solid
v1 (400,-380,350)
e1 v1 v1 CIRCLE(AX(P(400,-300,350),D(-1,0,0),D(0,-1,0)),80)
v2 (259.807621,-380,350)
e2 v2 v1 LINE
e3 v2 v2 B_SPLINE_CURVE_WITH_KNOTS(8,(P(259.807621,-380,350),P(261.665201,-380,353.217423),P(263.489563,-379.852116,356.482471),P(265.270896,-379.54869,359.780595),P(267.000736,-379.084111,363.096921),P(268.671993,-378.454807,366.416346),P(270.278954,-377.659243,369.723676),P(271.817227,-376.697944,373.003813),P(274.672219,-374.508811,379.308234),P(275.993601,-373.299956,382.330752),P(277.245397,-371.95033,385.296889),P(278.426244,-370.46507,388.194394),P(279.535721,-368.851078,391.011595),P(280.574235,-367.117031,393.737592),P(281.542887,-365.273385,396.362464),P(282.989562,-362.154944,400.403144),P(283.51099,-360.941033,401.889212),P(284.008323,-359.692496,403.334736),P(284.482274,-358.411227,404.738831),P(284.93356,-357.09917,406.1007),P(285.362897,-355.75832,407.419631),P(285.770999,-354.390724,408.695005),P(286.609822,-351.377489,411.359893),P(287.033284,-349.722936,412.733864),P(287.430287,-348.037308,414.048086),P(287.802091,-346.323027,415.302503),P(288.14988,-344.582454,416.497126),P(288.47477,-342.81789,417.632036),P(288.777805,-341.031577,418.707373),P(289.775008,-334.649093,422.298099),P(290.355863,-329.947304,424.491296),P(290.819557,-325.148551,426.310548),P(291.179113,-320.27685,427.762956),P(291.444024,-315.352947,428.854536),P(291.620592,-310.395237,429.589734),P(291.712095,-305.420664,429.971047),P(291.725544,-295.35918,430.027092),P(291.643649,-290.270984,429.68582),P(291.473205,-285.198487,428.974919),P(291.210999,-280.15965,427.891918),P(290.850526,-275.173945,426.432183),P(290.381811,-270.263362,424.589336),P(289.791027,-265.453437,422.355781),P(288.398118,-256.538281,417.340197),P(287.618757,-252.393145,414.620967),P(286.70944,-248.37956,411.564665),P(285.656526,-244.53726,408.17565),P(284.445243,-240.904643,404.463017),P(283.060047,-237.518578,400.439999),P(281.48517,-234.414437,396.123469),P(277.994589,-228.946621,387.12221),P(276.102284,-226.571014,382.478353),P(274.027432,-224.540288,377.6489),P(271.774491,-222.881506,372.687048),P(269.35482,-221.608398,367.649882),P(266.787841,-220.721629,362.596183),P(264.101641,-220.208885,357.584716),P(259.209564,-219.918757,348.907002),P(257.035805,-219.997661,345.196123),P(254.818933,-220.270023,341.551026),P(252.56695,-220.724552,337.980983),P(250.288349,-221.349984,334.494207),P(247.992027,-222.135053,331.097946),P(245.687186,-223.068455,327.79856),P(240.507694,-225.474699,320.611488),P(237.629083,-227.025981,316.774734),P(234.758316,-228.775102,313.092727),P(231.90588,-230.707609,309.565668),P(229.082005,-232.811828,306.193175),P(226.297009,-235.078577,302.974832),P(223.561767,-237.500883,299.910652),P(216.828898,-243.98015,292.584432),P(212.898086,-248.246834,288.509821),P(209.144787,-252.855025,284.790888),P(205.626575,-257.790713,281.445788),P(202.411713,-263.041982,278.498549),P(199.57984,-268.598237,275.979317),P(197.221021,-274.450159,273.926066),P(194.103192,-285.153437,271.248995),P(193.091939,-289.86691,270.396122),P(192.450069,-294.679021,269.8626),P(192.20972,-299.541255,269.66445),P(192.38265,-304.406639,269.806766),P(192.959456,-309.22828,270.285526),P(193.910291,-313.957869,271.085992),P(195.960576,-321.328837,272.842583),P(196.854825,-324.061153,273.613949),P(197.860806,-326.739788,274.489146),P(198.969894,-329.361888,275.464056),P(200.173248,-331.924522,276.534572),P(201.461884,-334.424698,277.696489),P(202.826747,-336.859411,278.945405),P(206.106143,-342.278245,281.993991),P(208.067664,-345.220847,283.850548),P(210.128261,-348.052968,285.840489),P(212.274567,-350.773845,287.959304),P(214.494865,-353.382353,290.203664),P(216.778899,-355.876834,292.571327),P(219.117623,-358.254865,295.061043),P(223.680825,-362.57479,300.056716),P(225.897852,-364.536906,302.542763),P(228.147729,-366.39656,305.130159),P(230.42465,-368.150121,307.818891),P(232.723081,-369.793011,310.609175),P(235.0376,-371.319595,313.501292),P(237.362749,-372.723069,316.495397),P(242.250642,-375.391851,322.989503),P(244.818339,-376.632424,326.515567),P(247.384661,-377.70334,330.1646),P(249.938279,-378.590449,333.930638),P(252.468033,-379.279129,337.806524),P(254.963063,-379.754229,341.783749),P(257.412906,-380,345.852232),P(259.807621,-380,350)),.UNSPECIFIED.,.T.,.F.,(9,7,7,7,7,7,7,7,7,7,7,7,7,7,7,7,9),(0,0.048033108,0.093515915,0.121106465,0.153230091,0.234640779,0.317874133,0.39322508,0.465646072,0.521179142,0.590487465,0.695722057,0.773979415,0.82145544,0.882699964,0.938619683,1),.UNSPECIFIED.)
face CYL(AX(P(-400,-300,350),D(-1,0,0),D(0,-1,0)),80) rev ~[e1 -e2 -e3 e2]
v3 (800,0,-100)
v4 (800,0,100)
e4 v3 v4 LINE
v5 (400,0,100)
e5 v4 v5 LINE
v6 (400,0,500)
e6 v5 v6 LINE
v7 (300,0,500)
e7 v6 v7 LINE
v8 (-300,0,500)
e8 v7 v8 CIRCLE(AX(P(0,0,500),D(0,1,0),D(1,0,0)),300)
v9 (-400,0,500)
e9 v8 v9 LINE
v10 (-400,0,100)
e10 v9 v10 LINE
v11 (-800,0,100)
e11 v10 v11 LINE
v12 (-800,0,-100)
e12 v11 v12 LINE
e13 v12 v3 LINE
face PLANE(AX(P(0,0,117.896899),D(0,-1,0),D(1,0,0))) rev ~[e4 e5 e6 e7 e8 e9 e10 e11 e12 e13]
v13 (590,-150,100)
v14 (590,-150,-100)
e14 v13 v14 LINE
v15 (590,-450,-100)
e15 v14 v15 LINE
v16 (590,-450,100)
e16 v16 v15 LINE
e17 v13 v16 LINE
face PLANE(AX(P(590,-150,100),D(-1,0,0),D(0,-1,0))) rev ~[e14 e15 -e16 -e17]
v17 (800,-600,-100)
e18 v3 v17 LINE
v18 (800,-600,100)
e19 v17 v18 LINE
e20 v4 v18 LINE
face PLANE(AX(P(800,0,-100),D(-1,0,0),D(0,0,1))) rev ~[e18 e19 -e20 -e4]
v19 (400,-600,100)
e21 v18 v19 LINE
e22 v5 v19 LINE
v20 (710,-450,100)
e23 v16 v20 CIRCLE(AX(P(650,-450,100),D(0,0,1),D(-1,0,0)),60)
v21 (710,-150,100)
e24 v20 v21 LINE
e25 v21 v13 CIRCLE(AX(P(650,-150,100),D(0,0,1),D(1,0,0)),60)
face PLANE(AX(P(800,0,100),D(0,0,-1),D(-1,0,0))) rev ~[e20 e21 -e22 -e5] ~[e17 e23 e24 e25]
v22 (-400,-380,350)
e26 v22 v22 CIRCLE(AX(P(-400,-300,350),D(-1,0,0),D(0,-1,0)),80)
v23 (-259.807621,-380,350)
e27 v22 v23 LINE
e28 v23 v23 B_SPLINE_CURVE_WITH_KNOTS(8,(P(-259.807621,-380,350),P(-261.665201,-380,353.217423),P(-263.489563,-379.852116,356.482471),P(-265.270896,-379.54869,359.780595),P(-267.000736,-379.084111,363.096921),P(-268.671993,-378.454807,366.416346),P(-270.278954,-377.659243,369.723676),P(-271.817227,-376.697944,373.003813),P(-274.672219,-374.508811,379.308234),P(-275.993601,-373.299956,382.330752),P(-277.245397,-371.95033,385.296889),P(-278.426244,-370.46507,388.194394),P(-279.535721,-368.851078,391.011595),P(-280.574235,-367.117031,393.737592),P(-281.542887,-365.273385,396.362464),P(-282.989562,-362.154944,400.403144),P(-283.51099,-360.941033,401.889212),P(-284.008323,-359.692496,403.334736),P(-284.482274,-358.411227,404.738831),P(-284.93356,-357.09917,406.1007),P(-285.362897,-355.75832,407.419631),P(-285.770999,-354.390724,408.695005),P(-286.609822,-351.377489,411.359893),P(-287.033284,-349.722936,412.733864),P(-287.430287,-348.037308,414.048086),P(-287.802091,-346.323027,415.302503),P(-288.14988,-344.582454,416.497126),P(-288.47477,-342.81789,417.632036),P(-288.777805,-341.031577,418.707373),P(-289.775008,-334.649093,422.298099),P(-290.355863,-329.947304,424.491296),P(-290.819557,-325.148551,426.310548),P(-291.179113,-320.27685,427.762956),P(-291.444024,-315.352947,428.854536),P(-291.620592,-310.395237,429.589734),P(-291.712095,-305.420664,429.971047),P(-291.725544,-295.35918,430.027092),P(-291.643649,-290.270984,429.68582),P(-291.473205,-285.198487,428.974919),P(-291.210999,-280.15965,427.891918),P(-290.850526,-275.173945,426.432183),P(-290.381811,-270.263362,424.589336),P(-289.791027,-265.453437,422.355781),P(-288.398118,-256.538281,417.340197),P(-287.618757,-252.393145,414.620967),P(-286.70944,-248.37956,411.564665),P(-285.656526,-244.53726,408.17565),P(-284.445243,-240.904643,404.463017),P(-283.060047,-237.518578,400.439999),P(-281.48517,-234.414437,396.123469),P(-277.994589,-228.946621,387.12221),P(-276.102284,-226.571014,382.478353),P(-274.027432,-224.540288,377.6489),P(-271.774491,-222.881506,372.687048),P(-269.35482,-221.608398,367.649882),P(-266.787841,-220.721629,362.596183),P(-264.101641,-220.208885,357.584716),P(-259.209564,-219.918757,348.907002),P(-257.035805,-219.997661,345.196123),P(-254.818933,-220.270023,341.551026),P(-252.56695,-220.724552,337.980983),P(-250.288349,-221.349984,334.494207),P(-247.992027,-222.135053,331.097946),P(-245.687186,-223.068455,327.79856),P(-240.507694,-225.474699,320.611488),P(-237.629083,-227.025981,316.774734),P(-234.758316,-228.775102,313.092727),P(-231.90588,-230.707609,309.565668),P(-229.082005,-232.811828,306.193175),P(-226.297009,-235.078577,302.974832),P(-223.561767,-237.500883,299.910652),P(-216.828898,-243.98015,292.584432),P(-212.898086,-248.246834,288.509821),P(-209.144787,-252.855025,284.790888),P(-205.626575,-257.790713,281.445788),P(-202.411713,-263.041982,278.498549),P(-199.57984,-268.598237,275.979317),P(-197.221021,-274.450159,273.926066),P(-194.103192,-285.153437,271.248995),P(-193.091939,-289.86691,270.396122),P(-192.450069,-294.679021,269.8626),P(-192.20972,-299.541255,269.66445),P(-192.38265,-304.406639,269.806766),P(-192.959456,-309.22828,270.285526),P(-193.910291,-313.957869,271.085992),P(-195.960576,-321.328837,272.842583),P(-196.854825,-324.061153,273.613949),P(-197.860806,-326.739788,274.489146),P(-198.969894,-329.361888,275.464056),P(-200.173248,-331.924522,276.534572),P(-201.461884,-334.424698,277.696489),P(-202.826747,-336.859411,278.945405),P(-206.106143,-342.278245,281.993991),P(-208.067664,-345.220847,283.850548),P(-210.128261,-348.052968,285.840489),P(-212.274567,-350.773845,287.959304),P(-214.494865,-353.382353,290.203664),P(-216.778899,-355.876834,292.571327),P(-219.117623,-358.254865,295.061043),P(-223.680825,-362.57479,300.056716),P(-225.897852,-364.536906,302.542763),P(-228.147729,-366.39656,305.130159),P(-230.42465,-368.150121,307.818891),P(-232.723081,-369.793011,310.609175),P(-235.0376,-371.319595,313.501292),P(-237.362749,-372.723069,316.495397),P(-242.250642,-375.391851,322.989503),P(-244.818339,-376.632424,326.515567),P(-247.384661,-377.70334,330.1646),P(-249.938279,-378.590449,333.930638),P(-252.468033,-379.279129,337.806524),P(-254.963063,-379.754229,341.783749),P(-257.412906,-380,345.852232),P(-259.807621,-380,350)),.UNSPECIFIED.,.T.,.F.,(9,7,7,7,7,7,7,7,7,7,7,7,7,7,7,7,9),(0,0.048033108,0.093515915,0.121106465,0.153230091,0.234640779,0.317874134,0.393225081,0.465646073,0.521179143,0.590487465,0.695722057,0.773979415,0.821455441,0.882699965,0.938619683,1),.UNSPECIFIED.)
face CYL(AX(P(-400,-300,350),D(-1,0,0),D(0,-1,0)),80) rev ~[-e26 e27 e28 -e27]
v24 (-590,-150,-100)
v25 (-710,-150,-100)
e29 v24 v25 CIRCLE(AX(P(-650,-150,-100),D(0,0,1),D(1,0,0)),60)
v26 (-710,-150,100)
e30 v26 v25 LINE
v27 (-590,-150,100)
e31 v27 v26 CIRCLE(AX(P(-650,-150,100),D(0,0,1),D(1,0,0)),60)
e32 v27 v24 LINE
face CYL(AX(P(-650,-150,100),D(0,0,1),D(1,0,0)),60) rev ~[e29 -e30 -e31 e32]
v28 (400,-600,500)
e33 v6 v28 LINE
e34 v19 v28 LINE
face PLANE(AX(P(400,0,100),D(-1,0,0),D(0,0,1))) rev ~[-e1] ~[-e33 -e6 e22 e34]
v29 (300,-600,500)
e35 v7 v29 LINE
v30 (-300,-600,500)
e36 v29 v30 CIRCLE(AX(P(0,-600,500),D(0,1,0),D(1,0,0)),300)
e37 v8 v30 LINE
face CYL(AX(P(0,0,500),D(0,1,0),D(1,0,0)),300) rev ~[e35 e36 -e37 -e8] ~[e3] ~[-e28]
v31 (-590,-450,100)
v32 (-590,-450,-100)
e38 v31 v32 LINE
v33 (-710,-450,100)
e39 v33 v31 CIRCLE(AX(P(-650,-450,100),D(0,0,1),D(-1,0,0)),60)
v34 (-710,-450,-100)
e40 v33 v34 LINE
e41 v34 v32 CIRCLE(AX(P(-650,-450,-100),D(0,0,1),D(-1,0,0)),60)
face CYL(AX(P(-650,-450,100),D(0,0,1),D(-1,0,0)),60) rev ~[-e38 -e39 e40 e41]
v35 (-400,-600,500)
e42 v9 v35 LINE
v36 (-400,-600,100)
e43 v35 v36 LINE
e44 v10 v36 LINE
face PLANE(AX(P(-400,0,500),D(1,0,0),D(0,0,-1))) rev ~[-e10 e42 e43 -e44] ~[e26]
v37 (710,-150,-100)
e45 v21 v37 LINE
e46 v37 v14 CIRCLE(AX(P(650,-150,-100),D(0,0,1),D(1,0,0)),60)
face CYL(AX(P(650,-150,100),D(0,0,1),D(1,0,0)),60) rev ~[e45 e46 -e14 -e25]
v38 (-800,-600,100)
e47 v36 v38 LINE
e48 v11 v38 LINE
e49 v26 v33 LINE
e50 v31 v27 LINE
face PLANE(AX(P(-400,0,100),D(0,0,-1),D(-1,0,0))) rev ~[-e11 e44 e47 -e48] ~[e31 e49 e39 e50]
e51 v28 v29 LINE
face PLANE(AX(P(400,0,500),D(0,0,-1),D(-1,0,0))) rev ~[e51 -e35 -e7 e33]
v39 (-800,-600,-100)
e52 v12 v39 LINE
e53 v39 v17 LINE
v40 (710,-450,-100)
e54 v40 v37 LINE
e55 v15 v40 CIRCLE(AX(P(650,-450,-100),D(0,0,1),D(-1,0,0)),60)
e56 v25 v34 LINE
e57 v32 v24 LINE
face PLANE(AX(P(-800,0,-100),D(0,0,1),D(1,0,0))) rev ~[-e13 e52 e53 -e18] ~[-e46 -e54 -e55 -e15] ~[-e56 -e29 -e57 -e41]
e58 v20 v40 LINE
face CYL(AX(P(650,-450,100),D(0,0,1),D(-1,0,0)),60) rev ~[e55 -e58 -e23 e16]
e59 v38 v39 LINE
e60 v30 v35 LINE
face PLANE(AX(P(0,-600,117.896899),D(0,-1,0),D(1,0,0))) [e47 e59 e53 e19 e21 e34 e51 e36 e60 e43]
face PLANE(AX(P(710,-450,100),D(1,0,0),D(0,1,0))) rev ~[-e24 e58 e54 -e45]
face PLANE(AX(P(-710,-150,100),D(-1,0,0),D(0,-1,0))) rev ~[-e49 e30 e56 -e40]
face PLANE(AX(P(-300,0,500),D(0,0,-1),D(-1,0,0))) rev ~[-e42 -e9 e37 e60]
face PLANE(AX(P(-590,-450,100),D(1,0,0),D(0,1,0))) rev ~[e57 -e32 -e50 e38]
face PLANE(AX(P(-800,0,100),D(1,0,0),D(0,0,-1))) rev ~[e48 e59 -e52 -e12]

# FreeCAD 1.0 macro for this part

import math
import FreeCAD as App
import Part
import Sketcher
from FreeCAD import Vector
Q = App.Units.Quantity

doc = App.newDocument("Part")
body = doc.addObject("PartDesign::Body", "Body")

# Sketch on XZ plane
sketch1 = body.newObject("Sketcher::SketchObject", "Sketch")
sketch1.AttachmentSupport = (doc.getObject("XZ_Plane"), [""])
sketch1.MapMode = "FlatFace"
sketch1.addGeometry([
    Part.LineSegment(Vector(-800, 100, 0), Vector(-800, -100, 0)),  # 0
    Part.LineSegment(Vector(-800, -100, 0), Vector(800, -100, 0)),  # 1
    Part.LineSegment(Vector(800, -100, 0), Vector(800, 100, 0)),  # 2
    Part.LineSegment(Vector(800, 100, 0), Vector(400, 100, 0)),  # 3
    Part.LineSegment(Vector(400, 100, 0), Vector(400, 500, 0)),  # 4
    Part.LineSegment(Vector(400, 500, 0), Vector(300, 500, 0)),  # 5
    Part.ArcOfCircle(Part.Circle(Vector(0, 500, 0), Vector(0, 0, 1), 300), math.radians(180), math.radians(360)),  # 6
    Part.LineSegment(Vector(-300, 500, 0), Vector(-400, 500, 0)),  # 7
    Part.LineSegment(Vector(-400, 500, 0), Vector(-400, 100, 0)),  # 8
    Part.LineSegment(Vector(-400, 100, 0), Vector(-800, 100, 0)),  # 9
], False)
sketch1.addConstraint([
    Sketcher.Constraint("Coincident", 0, 2, 1, 1),
    Sketcher.Constraint("Coincident", 1, 2, 2, 1),
    Sketcher.Constraint("Coincident", 2, 2, 3, 1),
    Sketcher.Constraint("Coincident", 3, 2, 4, 1),
    Sketcher.Constraint("Coincident", 4, 2, 5, 1),
    Sketcher.Constraint("Coincident", 5, 2, 6, 2),
    Sketcher.Constraint("Coincident", 6, 1, 7, 1),
    Sketcher.Constraint("Coincident", 7, 2, 8, 1),
    Sketcher.Constraint("Coincident", 8, 2, 9, 1),
    Sketcher.Constraint("Coincident", 9, 2, 0, 1),
    Sketcher.Constraint("Vertical", 0),
    Sketcher.Constraint("Horizontal", 1),
    Sketcher.Constraint("Vertical", 2),
    Sketcher.Constraint("Horizontal", 3),
    Sketcher.Constraint("Vertical", 4),
    Sketcher.Constraint("Horizontal", 5),
    Sketcher.Constraint("Horizontal", 7),
    Sketcher.Constraint("Vertical", 8),
    Sketcher.Constraint("Horizontal", 9),
    Sketcher.Constraint("Symmetric", 0, 2, 2, 2, -1, 1),
    Sketcher.Constraint("Symmetric", 5, 2, 6, 1, -2),
    Sketcher.Constraint("Symmetric", 3, 2, 8, 2, -2),
    Sketcher.Constraint("Horizontal", 6, 3, 4, 2),
    Sketcher.Constraint("Equal", 9, 4),
    Sketcher.Constraint("Radius", 6, Q("300 mm")),
    Sketcher.Constraint("DistanceX", 1, 1, 1, 2, Q("1600 mm")),
    Sketcher.Constraint("DistanceX", 3, 2, 3, 1, Q("400 mm")),
    Sketcher.Constraint("DistanceY", 0, 2, 0, 1, Q("200 mm")),
])
pad1 = body.newObject("PartDesign::Pad", "Pad")
pad1.Profile = sketch1
pad1.Length = 600

# Sketch on YZ plane
sketch2 = body.newObject("Sketcher::SketchObject", "Sketch001")
sketch2.AttachmentSupport = (doc.getObject("YZ_Plane"), [""])
sketch2.MapMode = "FlatFace"
sketch2.AttachmentOffset = App.Placement(Vector(0, 0, -400), App.Rotation())
sketch2.addGeometry(Part.Circle(Vector(-300, 350, 0), Vector(0, 0, 1), 80), False)
sketch2.addConstraint([
    Sketcher.Constraint("Diameter", 0, Q("160 mm")),
    Sketcher.Constraint("DistanceX", 0, 3, -1, 1, Q("300 mm")),
    Sketcher.Constraint("DistanceY", -1, 1, 0, 3, Q("350 mm")),
])
pocket1 = body.newObject("PartDesign::Pocket", "Pocket")
pocket1.Profile = sketch2
pocket1.Type = "ThroughAll"
pocket1.Reversed = True

# Sketch on XY plane
sketch3 = body.newObject("Sketcher::SketchObject", "Sketch002")
sketch3.AttachmentSupport = (doc.getObject("XY_Plane"), [""])
sketch3.MapMode = "FlatFace"
sketch3.AttachmentOffset = App.Placement(Vector(0, 0, 100), App.Rotation())
sketch3.addGeometry([
    Part.ArcOfCircle(Part.Circle(Vector(650, -450, 0), Vector(0, 0, 1), 60), math.radians(180), math.radians(360)),  # 0
    Part.LineSegment(Vector(710, -450, 0), Vector(710, -150, 0)),  # 1
    Part.ArcOfCircle(Part.Circle(Vector(650, -150, 0), Vector(0, 0, 1), 60), math.radians(0), math.radians(180)),  # 2
    Part.LineSegment(Vector(590, -150, 0), Vector(590, -450, 0)),  # 3
    Part.LineSegment(Vector(-710, -150, 0), Vector(-710, -450, 0)),  # 4
    Part.ArcOfCircle(Part.Circle(Vector(-650, -450, 0), Vector(0, 0, 1), 60), math.radians(180), math.radians(360)),  # 5
    Part.LineSegment(Vector(-590, -450, 0), Vector(-590, -150, 0)),  # 6
    Part.ArcOfCircle(Part.Circle(Vector(-650, -150, 0), Vector(0, 0, 1), 60), math.radians(0), math.radians(180)),  # 7
], False)
sketch3.addConstraint([
    Sketcher.Constraint("Tangent", 0, 2, 1, 1),
    Sketcher.Constraint("Tangent", 1, 2, 2, 1),
    Sketcher.Constraint("Tangent", 2, 2, 3, 1),
    Sketcher.Constraint("Tangent", 3, 2, 0, 1),
    Sketcher.Constraint("Tangent", 4, 2, 5, 1),
    Sketcher.Constraint("Tangent", 5, 2, 6, 1),
    Sketcher.Constraint("Tangent", 6, 2, 7, 1),
    Sketcher.Constraint("Tangent", 7, 2, 4, 1),
    Sketcher.Constraint("Vertical", 1),
    Sketcher.Constraint("Vertical", 3),
    Sketcher.Constraint("Vertical", 4),
    Sketcher.Constraint("Vertical", 6),
    Sketcher.Constraint("Equal", 2, 5),
    Sketcher.Constraint("Symmetric", 0, 3, 5, 3, -2),
    Sketcher.Constraint("Horizontal", 2, 3, 7, 3),
    Sketcher.Constraint("Radius", 0, Q("60 mm")),
    Sketcher.Constraint("DistanceY", 1, 1, 1, 2, Q("300 mm")),
    Sketcher.Constraint("DistanceX", -1, 1, 0, 3, Q("650 mm")),
    Sketcher.Constraint("DistanceY", 0, 3, -1, 1, Q("450 mm")),
])
pocket2 = body.newObject("PartDesign::Pocket", "Pocket001")
pocket2.Profile = sketch3
pocket2.Type = "ThroughAll"

doc.recompute()
